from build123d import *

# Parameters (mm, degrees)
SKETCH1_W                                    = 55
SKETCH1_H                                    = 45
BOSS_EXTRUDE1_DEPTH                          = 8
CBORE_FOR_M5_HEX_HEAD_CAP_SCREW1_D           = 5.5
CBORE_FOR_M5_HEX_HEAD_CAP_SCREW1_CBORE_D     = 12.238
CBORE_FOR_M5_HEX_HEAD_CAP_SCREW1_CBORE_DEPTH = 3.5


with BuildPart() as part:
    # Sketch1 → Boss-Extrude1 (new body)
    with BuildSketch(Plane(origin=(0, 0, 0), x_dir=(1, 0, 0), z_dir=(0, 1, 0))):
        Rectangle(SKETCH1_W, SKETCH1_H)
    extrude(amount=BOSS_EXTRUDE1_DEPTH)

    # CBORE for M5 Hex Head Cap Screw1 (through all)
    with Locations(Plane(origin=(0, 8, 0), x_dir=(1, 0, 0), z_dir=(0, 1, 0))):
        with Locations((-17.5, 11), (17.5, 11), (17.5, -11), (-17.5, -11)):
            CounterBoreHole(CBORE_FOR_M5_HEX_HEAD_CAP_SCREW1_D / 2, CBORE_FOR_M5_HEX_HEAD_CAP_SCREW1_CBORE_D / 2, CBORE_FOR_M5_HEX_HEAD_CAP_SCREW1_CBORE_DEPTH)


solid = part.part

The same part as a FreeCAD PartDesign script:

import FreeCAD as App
import Part
import Sketcher
from FreeCAD import Vector

doc = App.newDocument("Part")
params = doc.addObject("Spreadsheet::Sheet", "Params")
for row, (alias, value) in enumerate([
    ("sketch1_width", "55 mm"),
    ("sketch1_height", "45 mm"),
    ("pad1_length", "8 mm"),
    ("sketch2_diameter", "5.5 mm"),
    ("hole_diameter", "5.5 mm"),
    ("hole_cbore_diameter", "12.238 mm"),
    ("hole_cbore_depth", "3.5 mm"),
], start=1):
    params.set(f"A{row}", alias)
    params.set(f"B{row}", "=" + value)
    params.setAlias(f"B{row}", alias)

body = doc.addObject("PartDesign::Body", "Body")

# Sketch on XZ plane
sketch1 = body.newObject("Sketcher::SketchObject", "Sketch")
sketch1.AttachmentSupport = (doc.getObject("XZ_Plane"), [""])
sketch1.MapMode = "FlatFace"
sketch1.addGeometry(Part.LineSegment(Vector(-28, -22, 0), Vector(-28, 22, 0)), False)
sketch1.addGeometry(Part.LineSegment(Vector(-28, 22, 0), Vector(28, 22, 0)), False)
sketch1.addGeometry(Part.LineSegment(Vector(28, 22, 0), Vector(28, -22, 0)), False)
sketch1.addGeometry(Part.LineSegment(Vector(28, -22, 0), Vector(-28, -22, 0)), False)
sketch1.addConstraint(Sketcher.Constraint("Coincident", 0, 2, 1, 1))
sketch1.addConstraint(Sketcher.Constraint("Coincident", 1, 2, 2, 1))
sketch1.addConstraint(Sketcher.Constraint("Coincident", 2, 2, 3, 1))
sketch1.addConstraint(Sketcher.Constraint("Coincident", 3, 2, 0, 1))
sketch1.addConstraint(Sketcher.Constraint("Vertical", 0))
sketch1.addConstraint(Sketcher.Constraint("Horizontal", 1))
sketch1.addConstraint(Sketcher.Constraint("Vertical", 2))
sketch1.addConstraint(Sketcher.Constraint("Horizontal", 3))
sketch1.addConstraint(Sketcher.Constraint("Symmetric", 0, 2, 2, 2, -1, 1))
sketch1.addConstraint(Sketcher.Constraint("DistanceX", 1, 1, 1, 2, 55.0))
sketch1.addConstraint(Sketcher.Constraint("DistanceY", 0, 1, 0, 2, 45.0))
sketch1.setExpression("Constraints[9]", "Params.sketch1_width")
sketch1.setExpression("Constraints[10]", "Params.sketch1_height")
pad1 = body.newObject("PartDesign::Pad", "Pad")
pad1.Profile = sketch1
pad1.setExpression("Length", "Params.pad1_length")
pad1.Reversed = True

# Sketch on XZ plane
sketch2 = body.newObject("Sketcher::SketchObject", "Sketch001")
sketch2.AttachmentSupport = (doc.getObject("XZ_Plane"), [""])
sketch2.MapMode = "FlatFace"
sketch2.AttachmentOffset = App.Placement(Vector(0, 0, -8), App.Rotation())
sketch2.addGeometry(Part.Circle(Vector(-17.5, -11, 0), Vector(0, 0, 1), 2.8), False)
sketch2.addGeometry(Part.Circle(Vector(17.5, -11, 0), Vector(0, 0, 1), 2.8), False)
sketch2.addGeometry(Part.Circle(Vector(17.5, 11, 0), Vector(0, 0, 1), 2.8), False)
sketch2.addGeometry(Part.Circle(Vector(-17.5, 11, 0), Vector(0, 0, 1), 2.8), False)
sketch2.addConstraint(Sketcher.Constraint("Equal", 0, 1))
sketch2.addConstraint(Sketcher.Constraint("Equal", 1, 2))
sketch2.addConstraint(Sketcher.Constraint("Equal", 2, 3))
sketch2.addConstraint(Sketcher.Constraint("Symmetric", 0, 3, 2, 3, -1, 1))
sketch2.addConstraint(Sketcher.Constraint("Symmetric", 1, 3, 3, 3, -1, 1))
sketch2.addConstraint(Sketcher.Constraint("Symmetric", 0, 3, 1, 3, -2))
sketch2.addConstraint(Sketcher.Constraint("Diameter", 0, 5.5))
sketch2.addConstraint(Sketcher.Constraint("DistanceY", 0, 3, -1, 1, 11.0))
sketch2.addConstraint(Sketcher.Constraint("DistanceX", 0, 3, 1, 3, 35.0))
sketch2.setExpression("Constraints[6]", "Params.sketch2_diameter")
doc.recompute()
hole = body.newObject("PartDesign::Hole", "Hole")
hole.Profile = sketch2
hole.ThreadType = "None"
hole.setExpression("Diameter", "Params.hole_diameter")
hole.DepthType = "ThroughAll"
hole.HoleCutType = "Counterbore"
hole.setExpression("HoleCutDiameter", "Params.hole_cbore_diameter")
hole.setExpression("HoleCutDepth", "Params.hole_cbore_depth")
hole.Reversed = True

doc.recompute()
